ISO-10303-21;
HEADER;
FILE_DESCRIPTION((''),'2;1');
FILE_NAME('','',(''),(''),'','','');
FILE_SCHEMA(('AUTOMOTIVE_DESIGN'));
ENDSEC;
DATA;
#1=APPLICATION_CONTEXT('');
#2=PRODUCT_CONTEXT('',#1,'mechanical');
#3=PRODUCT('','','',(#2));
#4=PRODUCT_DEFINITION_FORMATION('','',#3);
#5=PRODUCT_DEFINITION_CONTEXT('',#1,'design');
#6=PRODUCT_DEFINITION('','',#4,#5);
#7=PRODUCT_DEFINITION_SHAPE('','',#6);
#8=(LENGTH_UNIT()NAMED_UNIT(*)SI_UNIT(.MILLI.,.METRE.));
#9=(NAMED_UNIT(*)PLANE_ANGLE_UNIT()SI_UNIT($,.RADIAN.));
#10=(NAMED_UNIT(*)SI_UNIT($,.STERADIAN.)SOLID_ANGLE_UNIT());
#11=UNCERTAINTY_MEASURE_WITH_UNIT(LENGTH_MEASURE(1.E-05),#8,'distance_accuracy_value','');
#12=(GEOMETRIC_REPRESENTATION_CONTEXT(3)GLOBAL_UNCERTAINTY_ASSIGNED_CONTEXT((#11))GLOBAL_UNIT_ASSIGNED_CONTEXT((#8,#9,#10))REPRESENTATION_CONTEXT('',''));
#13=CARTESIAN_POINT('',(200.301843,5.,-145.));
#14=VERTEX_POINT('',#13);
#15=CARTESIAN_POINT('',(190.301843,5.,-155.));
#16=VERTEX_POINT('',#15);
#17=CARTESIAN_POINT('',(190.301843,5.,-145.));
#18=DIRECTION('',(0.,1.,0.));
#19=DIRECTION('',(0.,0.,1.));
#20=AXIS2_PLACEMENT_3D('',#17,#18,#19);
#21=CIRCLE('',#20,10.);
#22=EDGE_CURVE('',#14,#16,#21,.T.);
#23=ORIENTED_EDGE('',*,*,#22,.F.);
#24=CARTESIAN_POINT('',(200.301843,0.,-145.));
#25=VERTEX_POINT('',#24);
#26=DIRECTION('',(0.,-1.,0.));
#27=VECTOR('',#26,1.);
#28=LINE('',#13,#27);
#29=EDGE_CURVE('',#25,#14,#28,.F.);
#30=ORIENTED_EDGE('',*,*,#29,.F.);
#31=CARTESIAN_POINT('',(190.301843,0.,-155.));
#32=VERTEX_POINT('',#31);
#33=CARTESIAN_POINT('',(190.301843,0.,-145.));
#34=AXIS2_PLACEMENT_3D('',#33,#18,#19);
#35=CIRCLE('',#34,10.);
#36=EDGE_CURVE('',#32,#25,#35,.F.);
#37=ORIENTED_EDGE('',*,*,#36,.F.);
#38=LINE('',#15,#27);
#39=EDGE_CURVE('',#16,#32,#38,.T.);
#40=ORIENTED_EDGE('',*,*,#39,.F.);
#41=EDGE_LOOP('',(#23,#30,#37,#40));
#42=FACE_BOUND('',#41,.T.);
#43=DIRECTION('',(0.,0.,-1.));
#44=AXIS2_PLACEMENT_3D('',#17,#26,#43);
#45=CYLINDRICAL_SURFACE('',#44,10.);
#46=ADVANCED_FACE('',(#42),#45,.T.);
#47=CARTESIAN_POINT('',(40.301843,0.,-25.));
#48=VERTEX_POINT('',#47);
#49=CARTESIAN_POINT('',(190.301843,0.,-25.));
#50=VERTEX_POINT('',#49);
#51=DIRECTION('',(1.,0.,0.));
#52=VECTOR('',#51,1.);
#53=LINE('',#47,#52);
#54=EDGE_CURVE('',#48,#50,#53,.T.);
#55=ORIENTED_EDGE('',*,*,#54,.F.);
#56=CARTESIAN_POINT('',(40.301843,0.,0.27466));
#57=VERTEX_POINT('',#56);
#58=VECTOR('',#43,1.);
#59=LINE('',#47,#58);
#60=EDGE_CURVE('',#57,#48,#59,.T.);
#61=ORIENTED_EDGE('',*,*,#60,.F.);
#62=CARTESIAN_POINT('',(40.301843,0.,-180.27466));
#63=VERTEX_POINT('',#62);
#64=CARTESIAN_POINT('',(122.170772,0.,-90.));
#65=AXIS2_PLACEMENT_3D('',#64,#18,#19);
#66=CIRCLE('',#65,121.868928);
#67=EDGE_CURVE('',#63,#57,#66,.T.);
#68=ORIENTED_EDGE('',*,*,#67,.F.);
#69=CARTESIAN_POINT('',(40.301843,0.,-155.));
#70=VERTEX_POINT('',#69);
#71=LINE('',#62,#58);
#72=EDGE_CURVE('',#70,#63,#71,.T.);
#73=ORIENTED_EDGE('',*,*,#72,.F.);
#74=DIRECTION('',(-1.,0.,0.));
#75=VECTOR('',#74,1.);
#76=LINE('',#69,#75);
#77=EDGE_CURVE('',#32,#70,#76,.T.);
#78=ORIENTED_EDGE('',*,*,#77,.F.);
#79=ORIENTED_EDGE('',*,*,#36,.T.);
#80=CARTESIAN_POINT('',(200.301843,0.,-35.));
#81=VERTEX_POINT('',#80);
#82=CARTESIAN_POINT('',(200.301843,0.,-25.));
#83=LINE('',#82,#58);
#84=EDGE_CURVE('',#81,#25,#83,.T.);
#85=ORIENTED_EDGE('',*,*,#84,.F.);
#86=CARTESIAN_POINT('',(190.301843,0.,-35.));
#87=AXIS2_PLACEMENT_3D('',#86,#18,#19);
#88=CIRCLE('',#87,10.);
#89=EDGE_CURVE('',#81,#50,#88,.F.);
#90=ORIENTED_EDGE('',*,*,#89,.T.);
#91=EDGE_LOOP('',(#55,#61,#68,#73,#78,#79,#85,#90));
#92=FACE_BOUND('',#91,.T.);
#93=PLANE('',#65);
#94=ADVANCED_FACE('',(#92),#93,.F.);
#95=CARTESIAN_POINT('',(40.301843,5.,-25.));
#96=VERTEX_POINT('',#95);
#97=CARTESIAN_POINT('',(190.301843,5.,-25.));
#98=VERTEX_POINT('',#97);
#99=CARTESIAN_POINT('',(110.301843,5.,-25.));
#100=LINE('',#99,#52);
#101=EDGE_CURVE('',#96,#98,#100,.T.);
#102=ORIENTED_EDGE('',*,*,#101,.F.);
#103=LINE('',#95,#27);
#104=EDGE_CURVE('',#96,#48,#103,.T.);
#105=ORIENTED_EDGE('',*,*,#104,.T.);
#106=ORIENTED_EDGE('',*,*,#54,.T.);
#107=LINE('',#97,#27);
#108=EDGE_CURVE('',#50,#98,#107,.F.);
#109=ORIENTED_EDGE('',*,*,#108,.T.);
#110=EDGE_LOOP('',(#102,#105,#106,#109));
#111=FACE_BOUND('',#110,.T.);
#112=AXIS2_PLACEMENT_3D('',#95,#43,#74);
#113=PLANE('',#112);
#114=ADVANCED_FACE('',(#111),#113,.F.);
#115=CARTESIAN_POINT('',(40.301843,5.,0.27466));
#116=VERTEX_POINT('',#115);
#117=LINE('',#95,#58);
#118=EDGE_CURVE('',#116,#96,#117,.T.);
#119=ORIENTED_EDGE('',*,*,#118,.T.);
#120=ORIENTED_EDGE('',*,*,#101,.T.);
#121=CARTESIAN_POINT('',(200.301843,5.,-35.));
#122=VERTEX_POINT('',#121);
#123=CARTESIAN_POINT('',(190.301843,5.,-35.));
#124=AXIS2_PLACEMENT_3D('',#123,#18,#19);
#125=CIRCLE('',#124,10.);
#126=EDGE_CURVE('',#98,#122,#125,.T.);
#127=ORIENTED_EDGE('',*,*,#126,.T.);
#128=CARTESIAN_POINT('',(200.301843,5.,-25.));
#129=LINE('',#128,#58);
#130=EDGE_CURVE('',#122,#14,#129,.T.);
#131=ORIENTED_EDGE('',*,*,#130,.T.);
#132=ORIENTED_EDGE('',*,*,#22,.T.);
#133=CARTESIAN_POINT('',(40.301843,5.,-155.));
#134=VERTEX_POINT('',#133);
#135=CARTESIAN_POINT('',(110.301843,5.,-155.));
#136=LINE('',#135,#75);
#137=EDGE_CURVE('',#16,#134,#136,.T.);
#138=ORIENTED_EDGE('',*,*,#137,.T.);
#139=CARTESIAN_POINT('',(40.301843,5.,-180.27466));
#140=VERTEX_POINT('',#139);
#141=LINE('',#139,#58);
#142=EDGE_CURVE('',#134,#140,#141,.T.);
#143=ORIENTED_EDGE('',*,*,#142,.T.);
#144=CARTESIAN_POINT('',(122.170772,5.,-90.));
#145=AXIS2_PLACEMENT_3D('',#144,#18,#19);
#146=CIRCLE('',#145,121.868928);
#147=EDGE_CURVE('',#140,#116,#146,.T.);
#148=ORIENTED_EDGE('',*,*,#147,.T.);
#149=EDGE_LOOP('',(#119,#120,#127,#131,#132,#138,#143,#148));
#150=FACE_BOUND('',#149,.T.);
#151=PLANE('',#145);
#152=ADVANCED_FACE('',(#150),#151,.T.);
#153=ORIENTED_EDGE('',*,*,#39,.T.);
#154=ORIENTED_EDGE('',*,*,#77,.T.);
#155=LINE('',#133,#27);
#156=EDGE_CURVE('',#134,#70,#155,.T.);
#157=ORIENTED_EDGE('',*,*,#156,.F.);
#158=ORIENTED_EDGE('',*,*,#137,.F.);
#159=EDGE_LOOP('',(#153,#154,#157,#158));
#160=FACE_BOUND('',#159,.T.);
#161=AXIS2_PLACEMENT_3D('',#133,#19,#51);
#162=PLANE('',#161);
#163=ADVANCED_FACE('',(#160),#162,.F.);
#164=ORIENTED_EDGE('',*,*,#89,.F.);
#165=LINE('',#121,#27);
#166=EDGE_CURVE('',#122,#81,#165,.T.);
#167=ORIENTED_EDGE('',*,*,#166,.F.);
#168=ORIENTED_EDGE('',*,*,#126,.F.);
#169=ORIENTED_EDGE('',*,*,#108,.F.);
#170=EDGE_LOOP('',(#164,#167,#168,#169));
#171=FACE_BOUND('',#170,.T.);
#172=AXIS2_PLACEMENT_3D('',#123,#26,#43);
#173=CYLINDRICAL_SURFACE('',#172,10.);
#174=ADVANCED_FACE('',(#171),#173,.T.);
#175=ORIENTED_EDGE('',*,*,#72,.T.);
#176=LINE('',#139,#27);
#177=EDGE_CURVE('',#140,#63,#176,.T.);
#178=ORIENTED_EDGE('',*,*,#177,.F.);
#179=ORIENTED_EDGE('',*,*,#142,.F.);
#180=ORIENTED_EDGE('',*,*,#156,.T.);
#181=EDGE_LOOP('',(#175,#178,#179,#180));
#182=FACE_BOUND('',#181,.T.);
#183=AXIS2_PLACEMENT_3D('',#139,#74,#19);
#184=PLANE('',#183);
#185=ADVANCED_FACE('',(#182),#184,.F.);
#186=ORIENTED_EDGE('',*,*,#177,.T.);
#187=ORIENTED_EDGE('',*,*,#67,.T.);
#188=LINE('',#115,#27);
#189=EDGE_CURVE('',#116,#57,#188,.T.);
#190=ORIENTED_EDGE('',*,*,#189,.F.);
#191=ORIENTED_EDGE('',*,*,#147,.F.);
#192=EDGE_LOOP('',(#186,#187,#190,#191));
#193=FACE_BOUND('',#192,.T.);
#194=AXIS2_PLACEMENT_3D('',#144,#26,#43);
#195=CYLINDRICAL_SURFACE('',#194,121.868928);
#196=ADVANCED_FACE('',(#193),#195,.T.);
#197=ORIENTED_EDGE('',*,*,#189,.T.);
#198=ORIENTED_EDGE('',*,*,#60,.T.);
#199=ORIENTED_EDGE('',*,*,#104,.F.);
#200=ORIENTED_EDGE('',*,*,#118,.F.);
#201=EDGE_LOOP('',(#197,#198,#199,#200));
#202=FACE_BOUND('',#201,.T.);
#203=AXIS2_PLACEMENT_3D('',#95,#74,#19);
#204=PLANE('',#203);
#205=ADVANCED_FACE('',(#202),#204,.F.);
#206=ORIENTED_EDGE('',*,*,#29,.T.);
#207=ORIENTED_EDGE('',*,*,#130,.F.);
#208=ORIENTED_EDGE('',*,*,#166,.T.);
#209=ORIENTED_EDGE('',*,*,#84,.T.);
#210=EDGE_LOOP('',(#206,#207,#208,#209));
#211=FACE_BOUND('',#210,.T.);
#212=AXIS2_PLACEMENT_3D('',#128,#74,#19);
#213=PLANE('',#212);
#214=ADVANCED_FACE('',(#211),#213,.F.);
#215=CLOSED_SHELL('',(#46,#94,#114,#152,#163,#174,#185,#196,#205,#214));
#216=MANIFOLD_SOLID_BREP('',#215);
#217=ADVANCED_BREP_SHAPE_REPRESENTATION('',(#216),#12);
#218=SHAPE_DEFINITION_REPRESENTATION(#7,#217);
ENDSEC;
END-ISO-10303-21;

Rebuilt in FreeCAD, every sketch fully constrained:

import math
import FreeCAD as App
import Part
import Sketcher
from FreeCAD import Vector


def edges_at(feature, points):
    """Names of the edges that pass closest to the given points."""
    edges = feature.Shape.Edges
    near = lambda p: min(range(len(edges)), key=lambda i: edges[i].distToShape(Part.Vertex(*p))[0])
    return sorted({f"Edge{near(p) + 1}" for p in points})

doc = App.newDocument("Part")
params = doc.addObject("Spreadsheet::Sheet", "Params")
for row, (alias, value) in enumerate([
    ("sketch1_width", "160 mm"),
    ("sketch1_height", "130 mm"),
    ("pad1_length", "5 mm"),
    ("fillet_radius", "10 mm"),
], start=1):
    params.set(f"A{row}", alias)
    params.set(f"B{row}", "=" + value)
    params.setAlias(f"B{row}", alias)

body = doc.addObject("PartDesign::Body", "Body")

# Sketch on XZ plane
sketch1 = body.newObject("Sketcher::SketchObject", "Sketch")
sketch1.AttachmentSupport = (doc.getObject("XZ_Plane"), [""])
sketch1.MapMode = "FlatFace"
sketch1.addGeometry(Part.LineSegment(Vector(40.301843, -25, 0), Vector(200.301843, -25, 0)), False)
sketch1.addGeometry(Part.LineSegment(Vector(200.301843, -25, 0), Vector(200.301843, -155, 0)), False)
sketch1.addGeometry(Part.LineSegment(Vector(200.301843, -155, 0), Vector(40.301843, -155, 0)), False)
sketch1.addGeometry(Part.LineSegment(Vector(40.301843, -155, 0), Vector(40.301843, -180.27466, 0)), False)
sketch1.addGeometry(Part.ArcOfCircle(Part.Circle(Vector(122.170772, -90, 0), Vector(0, 0, 1), 121.868928), math.radians(132.204481), math.radians(227.795519)), False)
sketch1.addGeometry(Part.LineSegment(Vector(40.301843, 0.27466, 0), Vector(40.301843, -25, 0)), False)
sketch1.addConstraint(Sketcher.Constraint("Coincident", 0, 2, 1, 1))
sketch1.addConstraint(Sketcher.Constraint("Coincident", 1, 2, 2, 1))
sketch1.addConstraint(Sketcher.Constraint("Coincident", 2, 2, 3, 1))
sketch1.addConstraint(Sketcher.Constraint("Coincident", 3, 2, 4, 2))
sketch1.addConstraint(Sketcher.Constraint("Coincident", 4, 1, 5, 1))
sketch1.addConstraint(Sketcher.Constraint("Coincident", 5, 2, 0, 1))
sketch1.addConstraint(Sketcher.Constraint("Horizontal", 0))
sketch1.addConstraint(Sketcher.Constraint("Vertical", 1))
sketch1.addConstraint(Sketcher.Constraint("Horizontal", 2))
sketch1.addConstraint(Sketcher.Constraint("Vertical", 3))
sketch1.addConstraint(Sketcher.Constraint("Vertical", 5))
sketch1.addConstraint(Sketcher.Constraint("Vertical", 3, 2, 4, 1))
sketch1.addConstraint(Sketcher.Constraint("Equal", 3, 5))
sketch1.addConstraint(Sketcher.Constraint("DistanceX", 0, 1, 0, 2, 160.0))
sketch1.addConstraint(Sketcher.Constraint("DistanceY", 1, 2, 1, 1, 130.0))
sketch1.addConstraint(Sketcher.Constraint("DistanceY", 4, 3, -1, 1, 90.0))
sketch1.addConstraint(Sketcher.Constraint("Radius", 4, 121.868928))
sketch1.addConstraint(Sketcher.Constraint("DistanceY", 3, 2, 3, 1, 25.27466))
sketch1.addConstraint(Sketcher.Constraint("DistanceX", -1, 1, 4, 3, 122.170772))
sketch1.setExpression("Constraints[13]", "Params.sketch1_width")
sketch1.setExpression("Constraints[14]", "Params.sketch1_height")
pad1 = body.newObject("PartDesign::Pad", "Pad")
pad1.Profile = sketch1
pad1.setExpression("Length", "Params.pad1_length")
pad1.Reversed = True
doc.recompute()

fillet = body.newObject("PartDesign::Fillet", "Fillet")
fillet.Base = (pad1, edges_at(pad1, [(200.302, 2.5, -155), (200.302, 2.5, -25)]))
fillet.setExpression("Radius", "Params.fillet_radius")

doc.recompute()
